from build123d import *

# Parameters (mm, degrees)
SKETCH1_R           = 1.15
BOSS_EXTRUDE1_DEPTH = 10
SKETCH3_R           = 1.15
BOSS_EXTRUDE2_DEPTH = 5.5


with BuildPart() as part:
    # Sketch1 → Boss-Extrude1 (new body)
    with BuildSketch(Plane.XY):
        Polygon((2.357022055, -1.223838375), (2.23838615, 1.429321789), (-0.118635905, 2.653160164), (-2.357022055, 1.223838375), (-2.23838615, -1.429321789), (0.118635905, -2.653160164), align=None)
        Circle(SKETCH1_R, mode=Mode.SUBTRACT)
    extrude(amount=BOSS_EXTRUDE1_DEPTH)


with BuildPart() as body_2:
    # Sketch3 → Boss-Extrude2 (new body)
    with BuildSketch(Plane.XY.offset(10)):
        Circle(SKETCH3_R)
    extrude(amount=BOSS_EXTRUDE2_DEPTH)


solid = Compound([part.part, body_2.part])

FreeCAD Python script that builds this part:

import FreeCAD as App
import Part
import Sketcher
from FreeCAD import Vector


def add_polygon(sketch, points):
    """Adds a closed chain of lines whose ends are joined by coincident constraints."""
    first, n = sketch.GeometryCount, len(points)
    for a, b in zip(points, points[1:] + points[:1]):
        sketch.addGeometry(Part.LineSegment(App.Vector(*a, 0), App.Vector(*b, 0)), False)
    for i in range(n):
        sketch.addConstraint(Sketcher.Constraint("Coincident", first + i, 2, first + (i + 1) % n, 1))

doc = App.newDocument("Part")
body = doc.addObject("PartDesign::Body", "Body")

sketch1 = doc.addObject("Sketcher::SketchObject", "Sketch")
body.addObject(sketch1)
sketch1.AttachmentSupport = (doc.XY_Plane, [""])
sketch1.MapMode = "FlatFace"
add_polygon(sketch1, [(2.357022, -1.223838), (2.238386, 1.429322), (-0.118636, 2.65316), (-2.357022, 1.223838), (-2.238386, -1.429322), (0.118636, -2.65316)])
sketch1.addGeometry(Part.Circle(Vector(0, 0, 0), Vector(0, 0, 1), 1.15), False)
sketch1.addConstraint([
    Sketcher.Constraint("Coincident", 6, 3, -1, 1),
    Sketcher.Constraint("Symmetric", 0, 2, 3, 2, -1, 1),
    Sketcher.Constraint("Symmetric", 1, 2, 4, 2, -1, 1),
    Sketcher.Constraint("Symmetric", 2, 2, 5, 2, -1, 1),
    Sketcher.Constraint("Equal", 0, 1),
    Sketcher.Constraint("Equal", 1, 2),
    Sketcher.Constraint("Diameter", 6, 2.3),
    Sketcher.Constraint("DistanceY", 4, 2, 2, 2, 3.876999),
    Sketcher.Constraint("Distance", 0, 2.655811),
    Sketcher.Constraint("DistanceY", -1, 1, 0, 2, 1.429322),
    Sketcher.Constraint("DistanceY", -1, 1, 1, 2, 2.65316),
])
pad1 = doc.addObject("PartDesign::Pad", "Pad")
body.addObject(pad1)
pad1.Profile = sketch1
pad1.Length = 10
body2 = doc.addObject("PartDesign::Body", "Body001")

sketch2 = doc.addObject("Sketcher::SketchObject", "Sketch001")
body2.addObject(sketch2)
sketch2.AttachmentSupport = (doc.getObject("XY_Plane001"), [""])
sketch2.MapMode = "FlatFace"
sketch2.AttachmentOffset = App.Placement(Vector(0, 0, 10), App.Rotation())
sketch2.addGeometry(Part.Circle(Vector(0, 0, 0), Vector(0, 0, 1), 1.15), False)
sketch2.addConstraint([
    Sketcher.Constraint("Coincident", 0, 3, -1, 1),
    Sketcher.Constraint("Diameter", 0, 2.3),
])
pad2 = doc.addObject("PartDesign::Pad", "Pad001")
body2.addObject(pad2)
pad2.Profile = sketch2
pad2.Length = 5.5

doc.recompute()
